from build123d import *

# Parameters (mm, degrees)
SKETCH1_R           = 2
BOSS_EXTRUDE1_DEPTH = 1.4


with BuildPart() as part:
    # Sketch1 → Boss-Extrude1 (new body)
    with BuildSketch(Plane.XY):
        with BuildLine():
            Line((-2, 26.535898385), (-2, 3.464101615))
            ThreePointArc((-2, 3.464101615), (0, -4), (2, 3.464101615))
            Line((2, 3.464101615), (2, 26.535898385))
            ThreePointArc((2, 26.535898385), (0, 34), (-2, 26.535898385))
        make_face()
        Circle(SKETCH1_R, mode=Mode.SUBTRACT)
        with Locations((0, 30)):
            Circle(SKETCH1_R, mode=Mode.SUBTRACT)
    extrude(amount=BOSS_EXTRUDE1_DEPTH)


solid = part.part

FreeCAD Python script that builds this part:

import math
import FreeCAD as App
import Part
import Sketcher

V = App.Vector
Q = App.Units.Quantity

doc = App.newDocument("Part")
body = doc.addObject("PartDesign::Body", "Body")

# Sketch on XY plane
sketch1 = body.newObject("Sketcher::SketchObject", "Sketch")
sketch1.AttachmentSupport = (doc.getObject("XY_Plane"), [""])
sketch1.MapMode = "FlatFace"
sketch1.addGeometry(Part.LineSegment(V(-2, 26.535898, 0), V(-2, 3.464102, 0)), False)
sketch1.addGeometry(Part.ArcOfCircle(Part.Circle(V(0, 0, 0), V(0, 0, 1), 4), math.radians(120), math.radians(420)), False)
sketch1.addGeometry(Part.LineSegment(V(2, 3.464102, 0), V(2, 26.535898, 0)), False)
sketch1.addGeometry(Part.ArcOfCircle(Part.Circle(V(0, 30, 0), V(0, 0, 1), 4), math.radians(-60), math.radians(240)), False)
sketch1.addGeometry(Part.Circle(V(0, 0, 0), V(0, 0, 1), 2), False)
sketch1.addGeometry(Part.Circle(V(0, 30, 0), V(0, 0, 1), 2), False)
sketch1.addConstraint(Sketcher.Constraint("Coincident", 0, 2, 1, 1))
sketch1.addConstraint(Sketcher.Constraint("Coincident", 1, 2, 2, 1))
sketch1.addConstraint(Sketcher.Constraint("Coincident", 2, 2, 3, 1))
sketch1.addConstraint(Sketcher.Constraint("Coincident", 3, 2, 0, 1))
sketch1.addConstraint(Sketcher.Constraint("Vertical", 0))
sketch1.addConstraint(Sketcher.Constraint("Vertical", 2))
sketch1.addConstraint(Sketcher.Constraint("Coincident", 1, 3, -1, 1))
sketch1.addConstraint(Sketcher.Constraint("Coincident", 4, 3, -1, 1))
sketch1.addConstraint(Sketcher.Constraint("Coincident", 5, 3, 3, 3))
sketch1.addConstraint(Sketcher.Constraint("Equal", 1, 3))
sketch1.addConstraint(Sketcher.Constraint("Equal", 4, 5))
sketch1.addConstraint(Sketcher.Constraint("Symmetric", 2, 2, 3, 2, -2))
sketch1.addConstraint(Sketcher.Constraint("Diameter", 4, Q("4 mm")))
sketch1.addConstraint(Sketcher.Constraint("Radius", 1, Q("4 mm")))
sketch1.addConstraint(Sketcher.Constraint("DistanceY", -1, 1, 3, 3, Q("30 mm")))
sketch1.addConstraint(Sketcher.Constraint("DistanceX", 0, 2, -1, 1, Q("2 mm")))
pad1 = body.newObject("PartDesign::Pad", "Pad")
pad1.Profile = sketch1
pad1.Length = 1.4

doc.recompute()
